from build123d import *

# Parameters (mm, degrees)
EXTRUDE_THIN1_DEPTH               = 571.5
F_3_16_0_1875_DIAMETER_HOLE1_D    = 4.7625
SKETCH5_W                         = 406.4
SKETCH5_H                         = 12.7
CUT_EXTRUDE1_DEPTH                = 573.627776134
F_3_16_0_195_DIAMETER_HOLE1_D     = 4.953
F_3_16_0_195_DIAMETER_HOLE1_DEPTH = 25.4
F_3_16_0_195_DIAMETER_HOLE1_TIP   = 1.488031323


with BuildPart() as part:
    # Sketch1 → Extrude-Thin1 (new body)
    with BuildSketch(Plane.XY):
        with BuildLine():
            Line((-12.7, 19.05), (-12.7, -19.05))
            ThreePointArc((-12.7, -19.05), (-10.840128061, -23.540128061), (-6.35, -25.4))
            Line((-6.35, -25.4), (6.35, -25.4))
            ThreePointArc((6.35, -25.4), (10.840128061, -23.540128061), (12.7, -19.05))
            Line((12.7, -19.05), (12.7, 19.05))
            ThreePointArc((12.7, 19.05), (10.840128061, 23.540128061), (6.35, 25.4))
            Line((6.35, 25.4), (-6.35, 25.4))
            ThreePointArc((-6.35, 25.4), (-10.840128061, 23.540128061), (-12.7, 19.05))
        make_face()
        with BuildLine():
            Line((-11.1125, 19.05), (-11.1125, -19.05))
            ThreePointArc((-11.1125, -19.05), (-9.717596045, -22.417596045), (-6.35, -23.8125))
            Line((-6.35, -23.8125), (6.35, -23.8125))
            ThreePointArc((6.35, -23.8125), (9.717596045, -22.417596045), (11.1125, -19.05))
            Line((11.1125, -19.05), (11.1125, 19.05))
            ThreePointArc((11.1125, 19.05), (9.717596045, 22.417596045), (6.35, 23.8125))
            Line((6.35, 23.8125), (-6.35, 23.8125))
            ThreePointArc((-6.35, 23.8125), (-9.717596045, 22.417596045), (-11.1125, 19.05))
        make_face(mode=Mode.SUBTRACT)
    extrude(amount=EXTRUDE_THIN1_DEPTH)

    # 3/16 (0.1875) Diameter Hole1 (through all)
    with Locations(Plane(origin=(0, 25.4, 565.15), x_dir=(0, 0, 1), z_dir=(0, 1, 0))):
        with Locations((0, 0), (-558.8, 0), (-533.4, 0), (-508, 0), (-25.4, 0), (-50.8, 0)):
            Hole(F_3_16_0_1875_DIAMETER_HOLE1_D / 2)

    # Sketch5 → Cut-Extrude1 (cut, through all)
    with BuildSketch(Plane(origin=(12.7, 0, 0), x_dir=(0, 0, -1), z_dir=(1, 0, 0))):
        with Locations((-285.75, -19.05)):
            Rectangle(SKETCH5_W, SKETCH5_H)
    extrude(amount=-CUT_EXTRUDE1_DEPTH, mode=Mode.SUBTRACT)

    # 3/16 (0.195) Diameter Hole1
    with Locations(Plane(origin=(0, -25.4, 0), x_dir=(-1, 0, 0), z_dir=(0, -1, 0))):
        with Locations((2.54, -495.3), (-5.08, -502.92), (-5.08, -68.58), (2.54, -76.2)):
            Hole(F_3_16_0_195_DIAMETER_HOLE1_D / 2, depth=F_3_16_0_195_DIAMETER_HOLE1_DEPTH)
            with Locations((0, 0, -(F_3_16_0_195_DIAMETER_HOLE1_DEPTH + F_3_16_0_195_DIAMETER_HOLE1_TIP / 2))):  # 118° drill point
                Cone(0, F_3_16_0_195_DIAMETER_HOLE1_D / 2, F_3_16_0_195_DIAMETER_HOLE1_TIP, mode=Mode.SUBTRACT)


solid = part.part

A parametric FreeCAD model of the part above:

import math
import FreeCAD as App
import Part
import Sketcher
from FreeCAD import Vector
Q = App.Units.Quantity

doc = App.newDocument("Part")
body = doc.addObject("PartDesign::Body", "Body")

# Sketch on XY plane
sketch1 = body.newObject("Sketcher::SketchObject", "Sketch")
sketch1.AttachmentSupport = (doc.getObject("XY_Plane"), [""])
sketch1.MapMode = "FlatFace"
sketch1.addGeometry(Part.LineSegment(Vector(-12.7, 19.1, 0), Vector(-12.7, -19.1, 0)), False)
sketch1.addGeometry(Part.ArcOfCircle(Part.Circle(Vector(-6.4, -19.1, 0), Vector(0, 0, 1), 6.3), math.radians(180), math.radians(270)), False)
sketch1.addGeometry(Part.LineSegment(Vector(-6.3, -25.4, 0), Vector(6.3, -25.4, 0)), False)
sketch1.addGeometry(Part.ArcOfCircle(Part.Circle(Vector(6.4, -19.1, 0), Vector(0, 0, 1), 6.3), math.radians(-90), math.radians(0)), False)
sketch1.addGeometry(Part.LineSegment(Vector(12.7, -19.1, 0), Vector(12.7, 19.1, 0)), False)
sketch1.addGeometry(Part.ArcOfCircle(Part.Circle(Vector(6.4, 19.1, 0), Vector(0, 0, 1), 6.3), math.radians(0), math.radians(90)), False)
sketch1.addGeometry(Part.LineSegment(Vector(6.3, 25.4, 0), Vector(-6.3, 25.4, 0)), False)
sketch1.addGeometry(Part.ArcOfCircle(Part.Circle(Vector(-6.4, 19.1, 0), Vector(0, 0, 1), 6.3), math.radians(90), math.radians(180)), False)
sketch1.addGeometry(Part.LineSegment(Vector(-11.1, -19.1, 0), Vector(-11.1, 19.1, 0)), False)
sketch1.addGeometry(Part.ArcOfCircle(Part.Circle(Vector(-6.3, 19, 0), Vector(0, 0, 1), 4.8), math.radians(90), math.radians(180)), False)
sketch1.addGeometry(Part.LineSegment(Vector(-6.3, 23.8, 0), Vector(6.3, 23.8, 0)), False)
sketch1.addGeometry(Part.ArcOfCircle(Part.Circle(Vector(6.3, 19, 0), Vector(0, 0, 1), 4.8), math.radians(0), math.radians(90)), False)
sketch1.addGeometry(Part.LineSegment(Vector(11.1, 19.1, 0), Vector(11.1, -19.1, 0)), False)
sketch1.addGeometry(Part.ArcOfCircle(Part.Circle(Vector(6.3, -19, 0), Vector(0, 0, 1), 4.8), math.radians(-90), math.radians(0)), False)
sketch1.addGeometry(Part.LineSegment(Vector(6.3, -23.8, 0), Vector(-6.3, -23.8, 0)), False)
sketch1.addGeometry(Part.ArcOfCircle(Part.Circle(Vector(-6.3, -19, 0), Vector(0, 0, 1), 4.8), math.radians(-180), math.radians(-90)), False)
sketch1.addConstraint(Sketcher.Constraint("Tangent", 0, 2, 1, 1))
sketch1.addConstraint(Sketcher.Constraint("Tangent", 1, 2, 2, 1))
sketch1.addConstraint(Sketcher.Constraint("Tangent", 2, 2, 3, 1))
sketch1.addConstraint(Sketcher.Constraint("Tangent", 3, 2, 4, 1))
sketch1.addConstraint(Sketcher.Constraint("Tangent", 4, 2, 5, 1))
sketch1.addConstraint(Sketcher.Constraint("Tangent", 5, 2, 6, 1))
sketch1.addConstraint(Sketcher.Constraint("Tangent", 6, 2, 7, 1))
sketch1.addConstraint(Sketcher.Constraint("Tangent", 7, 2, 0, 1))
sketch1.addConstraint(Sketcher.Constraint("Tangent", 8, 2, 9, 2))
sketch1.addConstraint(Sketcher.Constraint("Tangent", 9, 1, 10, 1))
sketch1.addConstraint(Sketcher.Constraint("Tangent", 10, 2, 11, 2))
sketch1.addConstraint(Sketcher.Constraint("Tangent", 11, 1, 12, 1))
sketch1.addConstraint(Sketcher.Constraint("Tangent", 12, 2, 13, 2))
sketch1.addConstraint(Sketcher.Constraint("Tangent", 13, 1, 14, 1))
sketch1.addConstraint(Sketcher.Constraint("Tangent", 14, 2, 15, 2))
sketch1.addConstraint(Sketcher.Constraint("Tangent", 15, 1, 8, 1))
sketch1.addConstraint(Sketcher.Constraint("Vertical", 0))
sketch1.addConstraint(Sketcher.Constraint("Horizontal", 2))
sketch1.addConstraint(Sketcher.Constraint("Vertical", 4))
sketch1.addConstraint(Sketcher.Constraint("Horizontal", 6))
sketch1.addConstraint(Sketcher.Constraint("Vertical", 8))
sketch1.addConstraint(Sketcher.Constraint("Horizontal", 10))
sketch1.addConstraint(Sketcher.Constraint("Vertical", 12))
sketch1.addConstraint(Sketcher.Constraint("Horizontal", 14))
sketch1.addConstraint(Sketcher.Constraint("Coincident", 9, 3, 7, 3))
sketch1.addConstraint(Sketcher.Constraint("Coincident", 11, 3, 5, 3))
sketch1.addConstraint(Sketcher.Constraint("Coincident", 13, 3, 3, 3))
sketch1.addConstraint(Sketcher.Constraint("Equal", 1, 3))
sketch1.addConstraint(Sketcher.Constraint("Equal", 3, 5))
sketch1.addConstraint(Sketcher.Constraint("Equal", 5, 7))
sketch1.addConstraint(Sketcher.Constraint("Equal", 13, 15))
sketch1.addConstraint(Sketcher.Constraint("Symmetric", 1, 3, 5, 3, -1, 1))
sketch1.addConstraint(Sketcher.Constraint("Radius", 1, Q("0.25 in")))
sketch1.addConstraint(Sketcher.Constraint("DistanceX", 2, 1, 2, 2, Q("0.5 in")))
sketch1.addConstraint(Sketcher.Constraint("DistanceY", 0, 2, 0, 1, Q("1.5 in")))
sketch1.addConstraint(Sketcher.Constraint("Radius", 9, Q("0.1875 in")))
pad1 = body.newObject("PartDesign::Pad", "Pad")
pad1.Profile = sketch1
pad1.Length = Q("22.5 in")

# Sketch on XZ plane
sketch2 = body.newObject("Sketcher::SketchObject", "Sketch001")
sketch2.AttachmentSupport = (doc.getObject("XZ_Plane"), [""])
sketch2.MapMode = "FlatFace"
sketch2.AttachmentOffset = App.Placement(Vector(0, 0, -1 * 25.4), App.Rotation())
sketch2.addGeometry(Part.Circle(Vector(0, 565.1, 0), Vector(0, 0, 1), 2.4), False)
sketch2.addGeometry(Part.Circle(Vector(0, 6.3, 0), Vector(0, 0, 1), 2.4), False)
sketch2.addGeometry(Part.Circle(Vector(0, 31.8, 0), Vector(0, 0, 1), 2.4), False)
sketch2.addGeometry(Part.Circle(Vector(0, 57.1, 0), Vector(0, 0, 1), 2.4), False)
sketch2.addGeometry(Part.Circle(Vector(0, 539.8, 0), Vector(0, 0, 1), 2.4), False)
sketch2.addGeometry(Part.Circle(Vector(0, 514.4, 0), Vector(0, 0, 1), 2.4), False)
sketch2.addConstraint(Sketcher.Constraint("Equal", 0, 1))
sketch2.addConstraint(Sketcher.Constraint("Equal", 1, 2))
sketch2.addConstraint(Sketcher.Constraint("Equal", 2, 3))
sketch2.addConstraint(Sketcher.Constraint("Equal", 3, 4))
sketch2.addConstraint(Sketcher.Constraint("Equal", 4, 5))
sketch2.addConstraint(Sketcher.Constraint("PointOnObject", 0, 3, -2))
sketch2.addConstraint(Sketcher.Constraint("PointOnObject", 1, 3, -2))
sketch2.addConstraint(Sketcher.Constraint("PointOnObject", 2, 3, -2))
sketch2.addConstraint(Sketcher.Constraint("PointOnObject", 3, 3, -2))
sketch2.addConstraint(Sketcher.Constraint("PointOnObject", 4, 3, -2))
sketch2.addConstraint(Sketcher.Constraint("PointOnObject", 5, 3, -2))
sketch2.addConstraint(Sketcher.Constraint("Diameter", 0, Q("0.1875 in")))
sketch2.addConstraint(Sketcher.Constraint("DistanceY", 1, 3, 0, 3, Q("22 in")))
sketch2.addConstraint(Sketcher.Constraint("DistanceY", 1, 3, 2, 3, Q("1 in")))
sketch2.addConstraint(Sketcher.Constraint("DistanceY", 2, 3, 3, 3, Q("1 in")))
sketch2.addConstraint(Sketcher.Constraint("DistanceY", 4, 3, 0, 3, Q("1 in")))
sketch2.addConstraint(Sketcher.Constraint("DistanceY", 5, 3, 4, 3, Q("1 in")))
sketch2.addConstraint(Sketcher.Constraint("DistanceY", -1, 1, 0, 3, Q("22.25 in")))
doc.recompute()
hole = body.newObject("PartDesign::Hole", "Hole")
hole.Profile = sketch2
hole.ThreadType = "None"
hole.Diameter = Q("0.1875 in")
hole.DepthType = "ThroughAll"
hole.Reversed = True

# Sketch on YZ plane
sketch3 = body.newObject("Sketcher::SketchObject", "Sketch002")
sketch3.AttachmentSupport = (doc.getObject("YZ_Plane"), [""])
sketch3.MapMode = "FlatFace"
sketch3.AttachmentOffset = App.Placement(Vector(0, 0, 0.5 * 25.4), App.Rotation())
sketch3.addGeometry(Part.LineSegment(Vector(-13, 489, 0), Vector(-25, 489, 0)), False)
sketch3.addGeometry(Part.LineSegment(Vector(-25, 489, 0), Vector(-25, 83, 0)), False)
sketch3.addGeometry(Part.LineSegment(Vector(-25, 83, 0), Vector(-13, 83, 0)), False)
sketch3.addGeometry(Part.LineSegment(Vector(-13, 83, 0), Vector(-13, 489, 0)), False)
sketch3.addConstraint(Sketcher.Constraint("Coincident", 0, 2, 1, 1))
sketch3.addConstraint(Sketcher.Constraint("Coincident", 1, 2, 2, 1))
sketch3.addConstraint(Sketcher.Constraint("Coincident", 2, 2, 3, 1))
sketch3.addConstraint(Sketcher.Constraint("Coincident", 3, 2, 0, 1))
sketch3.addConstraint(Sketcher.Constraint("Horizontal", 0))
sketch3.addConstraint(Sketcher.Constraint("Vertical", 1))
sketch3.addConstraint(Sketcher.Constraint("Horizontal", 2))
sketch3.addConstraint(Sketcher.Constraint("Vertical", 3))
sketch3.addConstraint(Sketcher.Constraint("DistanceY", 1, 2, 1, 1, Q("16 in")))
sketch3.addConstraint(Sketcher.Constraint("DistanceX", 0, 2, 0, 1, Q("0.5 in")))
sketch3.addConstraint(Sketcher.Constraint("DistanceX", 0, 2, -1, 1, Q("1 in")))
sketch3.addConstraint(Sketcher.Constraint("DistanceY", -1, 1, 0, 2, Q("19.25 in")))
pocket1 = body.newObject("PartDesign::Pocket", "Pocket")
pocket1.Profile = sketch3
pocket1.Type = "ThroughAll"

# Sketch on XZ plane
sketch4 = body.newObject("Sketcher::SketchObject", "Sketch003")
sketch4.AttachmentSupport = (doc.getObject("XZ_Plane"), [""])
sketch4.MapMode = "FlatFace"
sketch4.AttachmentOffset = App.Placement(Vector(0, 0, 1 * 25.4), App.Rotation())
sketch4.addGeometry(Part.Circle(Vector(-2.5, 495.3, 0), Vector(0, 0, 1), 2.5), False)
sketch4.addGeometry(Part.Circle(Vector(5.1, 502.9, 0), Vector(0, 0, 1), 2.5), False)
sketch4.addGeometry(Part.Circle(Vector(5.1, 68.6, 0), Vector(0, 0, 1), 2.5), False)
sketch4.addGeometry(Part.Circle(Vector(-2.5, 76.2, 0), Vector(0, 0, 1), 2.5), False)
sketch4.addConstraint(Sketcher.Constraint("Equal", 0, 1))
sketch4.addConstraint(Sketcher.Constraint("Equal", 1, 2))
sketch4.addConstraint(Sketcher.Constraint("Equal", 2, 3))
sketch4.addConstraint(Sketcher.Constraint("Vertical", 1, 3, 2, 3))
sketch4.addConstraint(Sketcher.Constraint("Vertical", 0, 3, 3, 3))
sketch4.addConstraint(Sketcher.Constraint("Diameter", 0, Q("0.195 in")))
sketch4.addConstraint(Sketcher.Constraint("DistanceY", -1, 1, 3, 3, Q("3 in")))
sketch4.addConstraint(Sketcher.Constraint("DistanceX", 0, 3, -1, 1, Q("0.1 in")))
sketch4.addConstraint(Sketcher.Constraint("DistanceY", -1, 1, 0, 3, Q("19.5 in")))
sketch4.addConstraint(Sketcher.Constraint("DistanceX", -1, 1, 1, 3, Q("0.2 in")))
sketch4.addConstraint(Sketcher.Constraint("DistanceY", -1, 1, 1, 3, Q("19.8 in")))
sketch4.addConstraint(Sketcher.Constraint("DistanceY", -1, 1, 2, 3, Q("2.7 in")))
doc.recompute()
hole2 = body.newObject("PartDesign::Hole", "Hole001")
hole2.Profile = sketch4
hole2.ThreadType = "None"
hole2.Diameter = Q("0.195 in")
hole2.DepthType = "Dimension"
hole2.Depth = Q("1 in")
hole2.DrillPoint = "Angled"
hole2.DrillPointAngle = 118

doc.recompute()
